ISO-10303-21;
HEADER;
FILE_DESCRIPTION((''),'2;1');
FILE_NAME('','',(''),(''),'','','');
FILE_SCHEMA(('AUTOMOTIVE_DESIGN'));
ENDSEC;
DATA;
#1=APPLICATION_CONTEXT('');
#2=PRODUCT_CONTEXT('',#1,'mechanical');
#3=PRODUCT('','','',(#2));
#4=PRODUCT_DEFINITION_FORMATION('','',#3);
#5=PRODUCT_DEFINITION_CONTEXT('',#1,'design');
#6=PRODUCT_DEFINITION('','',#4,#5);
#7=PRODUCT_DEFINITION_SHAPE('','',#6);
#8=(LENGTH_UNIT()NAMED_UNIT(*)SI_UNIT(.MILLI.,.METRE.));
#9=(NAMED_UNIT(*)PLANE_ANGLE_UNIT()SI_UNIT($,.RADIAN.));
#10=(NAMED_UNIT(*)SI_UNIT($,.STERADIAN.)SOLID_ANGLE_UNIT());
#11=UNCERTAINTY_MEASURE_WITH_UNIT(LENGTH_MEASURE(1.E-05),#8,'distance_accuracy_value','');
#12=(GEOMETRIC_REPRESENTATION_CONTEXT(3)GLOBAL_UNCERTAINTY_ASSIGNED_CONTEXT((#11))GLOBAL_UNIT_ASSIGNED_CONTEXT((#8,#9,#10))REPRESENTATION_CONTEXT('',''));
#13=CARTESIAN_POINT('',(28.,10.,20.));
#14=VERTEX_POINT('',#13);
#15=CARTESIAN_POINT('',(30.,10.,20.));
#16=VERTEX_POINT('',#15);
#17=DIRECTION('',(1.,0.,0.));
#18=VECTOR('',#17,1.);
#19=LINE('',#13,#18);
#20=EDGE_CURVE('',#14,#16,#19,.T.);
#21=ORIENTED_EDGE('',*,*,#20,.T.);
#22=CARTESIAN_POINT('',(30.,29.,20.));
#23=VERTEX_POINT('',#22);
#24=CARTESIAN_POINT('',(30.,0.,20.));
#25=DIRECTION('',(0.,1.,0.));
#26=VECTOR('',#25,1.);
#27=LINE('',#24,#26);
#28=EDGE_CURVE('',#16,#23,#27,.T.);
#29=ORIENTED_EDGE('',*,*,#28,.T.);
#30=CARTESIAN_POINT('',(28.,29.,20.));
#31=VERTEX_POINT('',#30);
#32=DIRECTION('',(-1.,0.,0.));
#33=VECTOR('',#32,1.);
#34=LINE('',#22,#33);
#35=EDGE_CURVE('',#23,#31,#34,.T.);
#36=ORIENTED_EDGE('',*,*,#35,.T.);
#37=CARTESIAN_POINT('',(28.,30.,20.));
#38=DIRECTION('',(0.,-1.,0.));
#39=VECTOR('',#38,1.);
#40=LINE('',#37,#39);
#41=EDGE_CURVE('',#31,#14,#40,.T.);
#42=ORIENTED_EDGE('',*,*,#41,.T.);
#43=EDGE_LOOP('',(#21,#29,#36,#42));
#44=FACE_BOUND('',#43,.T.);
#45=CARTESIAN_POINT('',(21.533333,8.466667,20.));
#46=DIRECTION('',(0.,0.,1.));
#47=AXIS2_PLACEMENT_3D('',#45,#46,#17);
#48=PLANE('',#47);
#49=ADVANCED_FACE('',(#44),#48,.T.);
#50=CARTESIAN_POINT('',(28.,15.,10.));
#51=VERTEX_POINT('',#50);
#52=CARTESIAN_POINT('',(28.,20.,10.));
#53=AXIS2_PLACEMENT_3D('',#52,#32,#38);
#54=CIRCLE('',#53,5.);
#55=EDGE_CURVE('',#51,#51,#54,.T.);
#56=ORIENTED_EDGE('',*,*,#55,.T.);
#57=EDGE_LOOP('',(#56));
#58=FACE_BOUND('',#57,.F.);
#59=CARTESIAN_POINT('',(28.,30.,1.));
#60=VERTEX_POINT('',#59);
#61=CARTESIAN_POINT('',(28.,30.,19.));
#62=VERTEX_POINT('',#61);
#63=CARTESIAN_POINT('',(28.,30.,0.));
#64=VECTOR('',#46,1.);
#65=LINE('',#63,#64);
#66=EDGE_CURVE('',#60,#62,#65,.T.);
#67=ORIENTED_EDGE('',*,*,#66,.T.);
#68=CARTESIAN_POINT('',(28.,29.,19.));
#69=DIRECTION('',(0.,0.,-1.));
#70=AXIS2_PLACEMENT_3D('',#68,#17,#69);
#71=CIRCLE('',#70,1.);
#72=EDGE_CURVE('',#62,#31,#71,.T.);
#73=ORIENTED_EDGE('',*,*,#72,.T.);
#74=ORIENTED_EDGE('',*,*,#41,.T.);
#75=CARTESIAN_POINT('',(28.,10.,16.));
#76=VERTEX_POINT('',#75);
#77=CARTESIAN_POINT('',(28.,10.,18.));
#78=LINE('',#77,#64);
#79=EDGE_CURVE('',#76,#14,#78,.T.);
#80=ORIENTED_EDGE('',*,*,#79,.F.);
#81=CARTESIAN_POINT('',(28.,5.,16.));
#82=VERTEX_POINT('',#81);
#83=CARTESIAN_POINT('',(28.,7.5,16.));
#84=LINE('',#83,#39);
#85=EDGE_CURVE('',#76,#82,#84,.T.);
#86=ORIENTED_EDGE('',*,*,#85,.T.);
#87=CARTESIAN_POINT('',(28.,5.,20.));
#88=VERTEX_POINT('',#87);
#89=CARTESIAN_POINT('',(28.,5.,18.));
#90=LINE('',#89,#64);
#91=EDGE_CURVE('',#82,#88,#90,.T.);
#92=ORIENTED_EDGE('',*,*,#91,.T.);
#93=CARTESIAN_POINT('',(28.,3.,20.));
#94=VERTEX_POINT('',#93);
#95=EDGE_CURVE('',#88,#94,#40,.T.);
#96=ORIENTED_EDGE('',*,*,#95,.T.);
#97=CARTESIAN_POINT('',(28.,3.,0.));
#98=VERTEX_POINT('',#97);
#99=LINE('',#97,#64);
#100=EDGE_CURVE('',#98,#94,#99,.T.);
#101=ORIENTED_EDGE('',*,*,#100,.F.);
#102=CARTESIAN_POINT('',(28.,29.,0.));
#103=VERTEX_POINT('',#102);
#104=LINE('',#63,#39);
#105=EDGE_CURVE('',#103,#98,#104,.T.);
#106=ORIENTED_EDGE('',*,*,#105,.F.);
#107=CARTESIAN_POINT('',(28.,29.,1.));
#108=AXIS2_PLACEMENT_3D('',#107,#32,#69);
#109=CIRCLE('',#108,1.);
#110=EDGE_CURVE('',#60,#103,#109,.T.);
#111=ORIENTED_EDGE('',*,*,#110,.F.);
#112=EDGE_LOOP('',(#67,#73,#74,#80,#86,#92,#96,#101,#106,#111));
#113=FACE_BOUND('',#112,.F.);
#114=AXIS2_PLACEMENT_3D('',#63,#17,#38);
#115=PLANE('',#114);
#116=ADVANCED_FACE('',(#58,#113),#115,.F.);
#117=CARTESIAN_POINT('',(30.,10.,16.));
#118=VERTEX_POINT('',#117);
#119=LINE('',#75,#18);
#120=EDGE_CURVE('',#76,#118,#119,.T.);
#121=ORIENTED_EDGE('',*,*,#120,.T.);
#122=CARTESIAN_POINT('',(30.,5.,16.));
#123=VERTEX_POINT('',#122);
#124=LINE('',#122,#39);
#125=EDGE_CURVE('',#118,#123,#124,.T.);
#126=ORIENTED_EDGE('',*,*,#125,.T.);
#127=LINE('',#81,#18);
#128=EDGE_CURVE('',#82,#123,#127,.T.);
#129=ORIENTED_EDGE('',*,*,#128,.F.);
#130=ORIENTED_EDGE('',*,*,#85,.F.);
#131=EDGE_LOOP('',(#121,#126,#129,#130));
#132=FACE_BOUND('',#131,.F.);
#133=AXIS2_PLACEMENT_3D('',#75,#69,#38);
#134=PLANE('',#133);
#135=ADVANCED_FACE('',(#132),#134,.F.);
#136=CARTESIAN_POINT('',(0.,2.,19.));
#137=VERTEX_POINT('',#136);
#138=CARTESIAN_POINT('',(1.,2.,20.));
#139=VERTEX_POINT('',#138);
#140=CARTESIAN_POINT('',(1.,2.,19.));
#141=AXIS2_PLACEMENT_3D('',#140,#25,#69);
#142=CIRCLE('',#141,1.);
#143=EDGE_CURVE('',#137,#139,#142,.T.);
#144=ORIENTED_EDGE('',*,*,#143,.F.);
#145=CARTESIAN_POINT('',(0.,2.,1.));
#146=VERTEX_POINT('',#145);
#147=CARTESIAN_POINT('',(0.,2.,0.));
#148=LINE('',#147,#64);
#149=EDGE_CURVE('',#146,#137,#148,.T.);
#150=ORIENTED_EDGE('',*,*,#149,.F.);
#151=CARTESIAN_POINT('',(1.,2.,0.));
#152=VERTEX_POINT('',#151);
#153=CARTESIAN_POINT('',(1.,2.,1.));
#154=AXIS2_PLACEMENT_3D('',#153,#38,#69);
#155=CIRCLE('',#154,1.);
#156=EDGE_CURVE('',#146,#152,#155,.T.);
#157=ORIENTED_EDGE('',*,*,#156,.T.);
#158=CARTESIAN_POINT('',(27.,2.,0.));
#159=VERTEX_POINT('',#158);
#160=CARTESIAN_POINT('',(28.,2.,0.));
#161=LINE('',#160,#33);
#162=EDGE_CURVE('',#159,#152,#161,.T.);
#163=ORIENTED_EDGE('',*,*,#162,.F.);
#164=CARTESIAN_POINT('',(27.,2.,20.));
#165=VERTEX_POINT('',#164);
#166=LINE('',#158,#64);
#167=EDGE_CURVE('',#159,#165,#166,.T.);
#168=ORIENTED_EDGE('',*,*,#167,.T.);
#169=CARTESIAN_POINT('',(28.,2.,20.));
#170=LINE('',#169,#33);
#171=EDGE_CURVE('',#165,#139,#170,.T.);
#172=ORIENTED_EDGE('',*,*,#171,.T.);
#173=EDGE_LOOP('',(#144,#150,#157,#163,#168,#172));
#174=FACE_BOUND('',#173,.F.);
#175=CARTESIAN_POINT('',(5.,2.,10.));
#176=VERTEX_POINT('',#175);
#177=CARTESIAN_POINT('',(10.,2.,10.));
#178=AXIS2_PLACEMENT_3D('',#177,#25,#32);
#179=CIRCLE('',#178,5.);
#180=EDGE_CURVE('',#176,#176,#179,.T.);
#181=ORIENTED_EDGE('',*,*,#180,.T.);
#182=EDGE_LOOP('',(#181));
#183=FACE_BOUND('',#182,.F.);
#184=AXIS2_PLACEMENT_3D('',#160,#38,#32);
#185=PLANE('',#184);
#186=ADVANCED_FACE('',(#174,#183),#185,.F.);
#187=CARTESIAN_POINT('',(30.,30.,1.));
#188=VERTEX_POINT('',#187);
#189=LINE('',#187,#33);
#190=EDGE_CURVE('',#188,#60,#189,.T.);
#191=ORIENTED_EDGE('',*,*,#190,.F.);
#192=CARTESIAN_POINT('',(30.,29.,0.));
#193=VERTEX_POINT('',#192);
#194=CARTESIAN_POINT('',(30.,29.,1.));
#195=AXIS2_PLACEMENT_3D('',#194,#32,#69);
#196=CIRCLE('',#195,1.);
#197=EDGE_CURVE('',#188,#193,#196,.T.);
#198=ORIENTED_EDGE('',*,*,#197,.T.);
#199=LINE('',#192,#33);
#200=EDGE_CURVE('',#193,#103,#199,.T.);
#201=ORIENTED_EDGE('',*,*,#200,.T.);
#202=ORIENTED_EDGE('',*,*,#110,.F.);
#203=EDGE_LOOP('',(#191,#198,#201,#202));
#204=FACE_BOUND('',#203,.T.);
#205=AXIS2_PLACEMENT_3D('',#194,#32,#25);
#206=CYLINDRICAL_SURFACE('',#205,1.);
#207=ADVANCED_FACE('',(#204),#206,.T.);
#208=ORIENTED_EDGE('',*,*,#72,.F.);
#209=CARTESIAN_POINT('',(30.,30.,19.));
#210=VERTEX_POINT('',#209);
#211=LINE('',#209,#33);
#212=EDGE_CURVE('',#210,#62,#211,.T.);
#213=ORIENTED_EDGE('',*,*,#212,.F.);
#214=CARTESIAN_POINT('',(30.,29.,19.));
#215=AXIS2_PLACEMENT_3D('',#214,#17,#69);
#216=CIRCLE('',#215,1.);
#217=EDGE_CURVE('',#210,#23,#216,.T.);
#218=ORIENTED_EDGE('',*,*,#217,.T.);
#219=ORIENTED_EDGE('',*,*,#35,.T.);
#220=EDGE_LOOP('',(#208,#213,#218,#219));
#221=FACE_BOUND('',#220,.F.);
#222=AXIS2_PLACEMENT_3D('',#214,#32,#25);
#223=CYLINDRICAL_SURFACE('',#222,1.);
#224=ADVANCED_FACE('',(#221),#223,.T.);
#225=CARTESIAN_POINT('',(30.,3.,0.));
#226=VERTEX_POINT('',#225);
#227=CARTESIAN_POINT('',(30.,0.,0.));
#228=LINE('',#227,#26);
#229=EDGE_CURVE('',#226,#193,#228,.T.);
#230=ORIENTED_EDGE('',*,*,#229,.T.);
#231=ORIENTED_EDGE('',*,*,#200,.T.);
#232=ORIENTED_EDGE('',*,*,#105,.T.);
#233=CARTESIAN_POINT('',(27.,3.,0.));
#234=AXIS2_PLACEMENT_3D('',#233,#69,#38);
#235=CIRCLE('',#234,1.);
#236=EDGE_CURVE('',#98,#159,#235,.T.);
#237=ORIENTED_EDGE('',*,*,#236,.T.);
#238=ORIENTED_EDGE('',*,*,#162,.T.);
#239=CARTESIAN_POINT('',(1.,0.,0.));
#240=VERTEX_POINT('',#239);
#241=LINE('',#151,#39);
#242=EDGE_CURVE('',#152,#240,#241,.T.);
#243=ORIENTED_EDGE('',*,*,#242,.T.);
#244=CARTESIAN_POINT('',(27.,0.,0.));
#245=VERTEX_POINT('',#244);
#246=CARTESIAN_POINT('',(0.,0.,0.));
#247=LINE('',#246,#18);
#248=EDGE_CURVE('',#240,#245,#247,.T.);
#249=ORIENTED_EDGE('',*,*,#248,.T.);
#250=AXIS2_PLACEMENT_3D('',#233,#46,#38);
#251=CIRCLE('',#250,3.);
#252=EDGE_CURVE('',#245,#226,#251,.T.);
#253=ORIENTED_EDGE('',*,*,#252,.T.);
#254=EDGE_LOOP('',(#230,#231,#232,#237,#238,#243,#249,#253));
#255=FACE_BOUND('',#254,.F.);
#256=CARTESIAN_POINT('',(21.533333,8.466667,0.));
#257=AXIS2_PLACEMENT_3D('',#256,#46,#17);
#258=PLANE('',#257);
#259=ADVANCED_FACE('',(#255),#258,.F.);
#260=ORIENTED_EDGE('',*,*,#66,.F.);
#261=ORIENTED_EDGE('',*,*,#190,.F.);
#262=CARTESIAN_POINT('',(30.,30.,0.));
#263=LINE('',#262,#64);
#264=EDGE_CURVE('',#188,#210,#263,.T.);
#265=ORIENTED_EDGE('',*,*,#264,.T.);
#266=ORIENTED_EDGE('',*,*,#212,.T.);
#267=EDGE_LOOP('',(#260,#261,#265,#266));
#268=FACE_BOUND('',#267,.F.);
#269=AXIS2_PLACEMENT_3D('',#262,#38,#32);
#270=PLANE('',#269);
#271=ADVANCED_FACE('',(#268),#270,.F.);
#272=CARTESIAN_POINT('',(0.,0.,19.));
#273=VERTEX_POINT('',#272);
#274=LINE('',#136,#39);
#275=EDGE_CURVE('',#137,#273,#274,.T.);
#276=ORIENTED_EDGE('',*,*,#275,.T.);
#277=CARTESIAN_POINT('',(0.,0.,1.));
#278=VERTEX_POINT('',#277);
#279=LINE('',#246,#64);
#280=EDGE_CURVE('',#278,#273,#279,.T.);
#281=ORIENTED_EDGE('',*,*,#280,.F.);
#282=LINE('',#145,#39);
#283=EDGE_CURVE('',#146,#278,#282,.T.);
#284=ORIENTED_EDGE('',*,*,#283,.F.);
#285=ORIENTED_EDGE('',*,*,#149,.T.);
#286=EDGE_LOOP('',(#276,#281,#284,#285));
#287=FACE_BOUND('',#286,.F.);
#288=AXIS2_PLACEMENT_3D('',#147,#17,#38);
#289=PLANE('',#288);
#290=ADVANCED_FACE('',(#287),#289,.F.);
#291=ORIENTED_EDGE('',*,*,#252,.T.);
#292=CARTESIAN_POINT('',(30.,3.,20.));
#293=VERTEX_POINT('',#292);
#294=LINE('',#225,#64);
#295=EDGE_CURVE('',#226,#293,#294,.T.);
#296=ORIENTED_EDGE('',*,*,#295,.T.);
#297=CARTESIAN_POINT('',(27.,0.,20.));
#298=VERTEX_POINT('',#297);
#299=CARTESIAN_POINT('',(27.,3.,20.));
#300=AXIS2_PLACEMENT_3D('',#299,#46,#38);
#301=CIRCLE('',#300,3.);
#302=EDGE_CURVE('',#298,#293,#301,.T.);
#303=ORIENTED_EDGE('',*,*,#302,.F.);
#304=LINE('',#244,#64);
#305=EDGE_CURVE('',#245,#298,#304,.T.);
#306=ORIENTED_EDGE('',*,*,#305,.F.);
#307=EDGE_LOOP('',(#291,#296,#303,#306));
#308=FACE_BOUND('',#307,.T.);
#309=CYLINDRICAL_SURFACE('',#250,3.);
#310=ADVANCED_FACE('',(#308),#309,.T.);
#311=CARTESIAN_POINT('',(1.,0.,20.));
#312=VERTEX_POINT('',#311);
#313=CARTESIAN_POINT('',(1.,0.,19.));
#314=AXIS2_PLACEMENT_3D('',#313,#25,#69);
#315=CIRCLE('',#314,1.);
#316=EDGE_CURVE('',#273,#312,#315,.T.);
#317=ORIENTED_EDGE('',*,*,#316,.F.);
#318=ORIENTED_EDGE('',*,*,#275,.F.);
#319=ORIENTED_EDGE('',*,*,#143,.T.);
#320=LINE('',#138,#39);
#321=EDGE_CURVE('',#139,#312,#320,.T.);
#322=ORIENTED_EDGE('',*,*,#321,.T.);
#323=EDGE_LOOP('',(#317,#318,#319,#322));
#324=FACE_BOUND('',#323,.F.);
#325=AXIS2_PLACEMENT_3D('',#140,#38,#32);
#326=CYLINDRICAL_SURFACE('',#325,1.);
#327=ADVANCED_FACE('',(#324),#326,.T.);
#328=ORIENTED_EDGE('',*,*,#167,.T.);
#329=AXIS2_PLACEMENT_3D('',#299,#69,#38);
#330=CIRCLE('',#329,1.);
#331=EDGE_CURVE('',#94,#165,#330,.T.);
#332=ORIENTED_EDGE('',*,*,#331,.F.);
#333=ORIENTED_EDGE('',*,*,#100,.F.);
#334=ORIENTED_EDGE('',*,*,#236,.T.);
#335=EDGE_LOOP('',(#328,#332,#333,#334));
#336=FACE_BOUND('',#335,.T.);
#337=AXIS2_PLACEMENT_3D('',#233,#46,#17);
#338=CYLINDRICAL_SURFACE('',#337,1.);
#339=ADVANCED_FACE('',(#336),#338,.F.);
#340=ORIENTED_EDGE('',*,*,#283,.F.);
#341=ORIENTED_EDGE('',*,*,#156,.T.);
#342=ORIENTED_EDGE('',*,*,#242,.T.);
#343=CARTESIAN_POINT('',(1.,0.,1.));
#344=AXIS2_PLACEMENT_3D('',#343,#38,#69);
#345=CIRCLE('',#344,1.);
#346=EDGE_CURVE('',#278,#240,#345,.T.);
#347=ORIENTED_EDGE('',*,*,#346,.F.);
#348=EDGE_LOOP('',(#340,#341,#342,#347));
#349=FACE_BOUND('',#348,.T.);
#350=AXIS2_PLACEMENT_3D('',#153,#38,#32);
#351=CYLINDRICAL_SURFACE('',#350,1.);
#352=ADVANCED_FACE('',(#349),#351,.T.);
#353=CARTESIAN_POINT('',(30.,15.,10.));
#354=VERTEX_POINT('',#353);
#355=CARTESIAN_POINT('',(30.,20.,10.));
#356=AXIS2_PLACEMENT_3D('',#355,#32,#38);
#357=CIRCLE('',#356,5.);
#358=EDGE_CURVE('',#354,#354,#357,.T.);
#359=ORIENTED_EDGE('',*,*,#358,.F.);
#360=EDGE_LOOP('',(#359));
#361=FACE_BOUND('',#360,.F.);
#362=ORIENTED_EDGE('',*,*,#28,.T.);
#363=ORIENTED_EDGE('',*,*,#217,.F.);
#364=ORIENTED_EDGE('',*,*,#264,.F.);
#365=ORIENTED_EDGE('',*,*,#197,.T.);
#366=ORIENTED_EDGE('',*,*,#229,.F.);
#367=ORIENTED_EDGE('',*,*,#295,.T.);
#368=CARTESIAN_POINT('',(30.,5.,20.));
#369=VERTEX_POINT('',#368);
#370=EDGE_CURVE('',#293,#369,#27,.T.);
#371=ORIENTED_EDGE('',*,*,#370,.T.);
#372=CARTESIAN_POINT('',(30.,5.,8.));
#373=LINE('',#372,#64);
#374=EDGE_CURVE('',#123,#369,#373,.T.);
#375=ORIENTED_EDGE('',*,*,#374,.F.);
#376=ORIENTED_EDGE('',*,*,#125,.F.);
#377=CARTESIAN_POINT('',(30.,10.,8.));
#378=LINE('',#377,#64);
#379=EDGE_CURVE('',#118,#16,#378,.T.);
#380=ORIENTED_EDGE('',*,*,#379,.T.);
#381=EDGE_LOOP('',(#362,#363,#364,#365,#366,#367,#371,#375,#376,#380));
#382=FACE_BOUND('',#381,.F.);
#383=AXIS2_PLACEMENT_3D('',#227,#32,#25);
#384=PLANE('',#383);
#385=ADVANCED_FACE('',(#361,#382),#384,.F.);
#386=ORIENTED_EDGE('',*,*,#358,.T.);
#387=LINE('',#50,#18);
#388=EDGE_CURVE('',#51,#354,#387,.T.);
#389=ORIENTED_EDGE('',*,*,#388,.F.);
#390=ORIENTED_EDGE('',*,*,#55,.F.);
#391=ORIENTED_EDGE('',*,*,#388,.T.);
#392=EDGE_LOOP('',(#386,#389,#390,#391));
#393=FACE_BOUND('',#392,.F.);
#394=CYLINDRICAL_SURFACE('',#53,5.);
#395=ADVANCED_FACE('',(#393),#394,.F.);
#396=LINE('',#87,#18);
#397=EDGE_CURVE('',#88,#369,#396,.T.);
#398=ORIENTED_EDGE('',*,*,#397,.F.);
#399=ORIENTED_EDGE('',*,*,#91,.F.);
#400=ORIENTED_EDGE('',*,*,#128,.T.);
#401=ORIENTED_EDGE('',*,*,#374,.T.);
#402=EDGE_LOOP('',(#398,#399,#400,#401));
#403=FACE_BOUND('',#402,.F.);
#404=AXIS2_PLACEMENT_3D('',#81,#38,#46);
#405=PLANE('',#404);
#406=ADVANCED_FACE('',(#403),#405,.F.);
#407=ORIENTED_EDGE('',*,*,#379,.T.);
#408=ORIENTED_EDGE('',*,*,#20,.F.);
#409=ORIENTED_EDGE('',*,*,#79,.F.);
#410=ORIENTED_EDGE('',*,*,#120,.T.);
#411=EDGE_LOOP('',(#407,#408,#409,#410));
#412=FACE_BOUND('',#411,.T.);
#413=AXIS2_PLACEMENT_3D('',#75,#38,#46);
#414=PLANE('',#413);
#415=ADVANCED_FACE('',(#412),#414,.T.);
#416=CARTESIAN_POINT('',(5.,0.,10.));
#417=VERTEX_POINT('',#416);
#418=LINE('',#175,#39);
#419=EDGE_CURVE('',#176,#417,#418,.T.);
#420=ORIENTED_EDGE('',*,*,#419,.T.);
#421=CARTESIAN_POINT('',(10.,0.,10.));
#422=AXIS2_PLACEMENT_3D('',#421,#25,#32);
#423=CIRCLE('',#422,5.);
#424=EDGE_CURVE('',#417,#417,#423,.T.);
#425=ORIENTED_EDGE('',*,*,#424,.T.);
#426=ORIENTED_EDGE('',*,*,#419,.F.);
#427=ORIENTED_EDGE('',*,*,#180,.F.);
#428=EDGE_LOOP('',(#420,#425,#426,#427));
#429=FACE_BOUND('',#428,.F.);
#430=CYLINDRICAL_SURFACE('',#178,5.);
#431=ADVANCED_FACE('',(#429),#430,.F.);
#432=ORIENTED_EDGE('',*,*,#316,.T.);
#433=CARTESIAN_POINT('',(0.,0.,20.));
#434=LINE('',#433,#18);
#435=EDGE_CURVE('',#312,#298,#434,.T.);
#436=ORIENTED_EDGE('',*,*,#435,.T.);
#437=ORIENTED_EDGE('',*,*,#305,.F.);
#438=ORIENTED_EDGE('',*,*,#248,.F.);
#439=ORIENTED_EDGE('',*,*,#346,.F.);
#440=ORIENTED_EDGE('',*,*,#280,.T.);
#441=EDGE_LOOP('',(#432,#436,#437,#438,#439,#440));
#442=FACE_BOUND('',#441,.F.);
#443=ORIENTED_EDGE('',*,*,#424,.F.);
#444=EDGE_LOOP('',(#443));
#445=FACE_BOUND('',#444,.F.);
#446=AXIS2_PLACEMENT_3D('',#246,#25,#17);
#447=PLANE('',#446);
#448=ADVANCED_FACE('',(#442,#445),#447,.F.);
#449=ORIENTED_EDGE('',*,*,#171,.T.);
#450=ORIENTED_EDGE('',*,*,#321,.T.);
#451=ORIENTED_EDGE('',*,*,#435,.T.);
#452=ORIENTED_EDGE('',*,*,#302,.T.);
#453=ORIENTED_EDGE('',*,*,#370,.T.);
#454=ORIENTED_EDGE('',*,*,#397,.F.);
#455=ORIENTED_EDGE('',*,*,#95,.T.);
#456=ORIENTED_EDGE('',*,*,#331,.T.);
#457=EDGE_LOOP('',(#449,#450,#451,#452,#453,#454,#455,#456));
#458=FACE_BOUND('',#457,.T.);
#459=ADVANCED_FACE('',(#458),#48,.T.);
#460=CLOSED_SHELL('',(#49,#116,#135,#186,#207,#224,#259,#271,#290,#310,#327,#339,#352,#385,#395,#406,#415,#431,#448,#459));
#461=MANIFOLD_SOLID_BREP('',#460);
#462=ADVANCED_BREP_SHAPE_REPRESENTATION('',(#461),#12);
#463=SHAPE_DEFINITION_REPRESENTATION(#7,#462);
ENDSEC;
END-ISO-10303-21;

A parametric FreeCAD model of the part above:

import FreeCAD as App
import Part
import Sketcher

V = App.Vector
Q = App.Units.Quantity


def edges_at(feature, points):
    """Names of the edges that pass closest to the given points."""
    edges = feature.Shape.Edges
    near = lambda p: min(range(len(edges)), key=lambda i: edges[i].distToShape(Part.Vertex(*p))[0])
    return sorted({f"Edge{near(p) + 1}" for p in points})

doc = App.newDocument("Part")
body = doc.addObject("PartDesign::Body", "Body")

sketch1 = body.newObject("Sketcher::SketchObject", "Sketch")
sketch1.AttachmentSupport = (doc.getObject("XY_Plane"), [""])
sketch1.MapMode = "FlatFace"
sketch1.addGeometry([
    Part.LineSegment(V(0, 2, 0), V(0, 0, 0)),
    Part.LineSegment(V(0, 0, 0), V(30, 0, 0)),
    Part.LineSegment(V(30, 0, 0), V(30, 30, 0)),
    Part.LineSegment(V(30, 30, 0), V(28, 30, 0)),
    Part.LineSegment(V(28, 30, 0), V(28, 2, 0)),
    Part.LineSegment(V(28, 2, 0), V(0, 2, 0)),
], False)
sketch1.addConstraint([
    Sketcher.Constraint("Coincident", 0, 2, 1, 1),
    Sketcher.Constraint("Coincident", 1, 2, 2, 1),
    Sketcher.Constraint("Coincident", 2, 2, 3, 1),
    Sketcher.Constraint("Coincident", 3, 2, 4, 1),
    Sketcher.Constraint("Coincident", 4, 2, 5, 1),
    Sketcher.Constraint("Coincident", 5, 2, 0, 1),
    Sketcher.Constraint("Vertical", 0),
    Sketcher.Constraint("Horizontal", 1),
    Sketcher.Constraint("Vertical", 2),
    Sketcher.Constraint("Horizontal", 3),
    Sketcher.Constraint("Vertical", 4),
    Sketcher.Constraint("Horizontal", 5),
    Sketcher.Constraint("Coincident", 0, 2, -1, 1),
    Sketcher.Constraint("Equal", 3, 0),
    Sketcher.Constraint("Equal", 1, 2),
    Sketcher.Constraint("DistanceX", 1, 1, 1, 2, Q("30 mm")),
    Sketcher.Constraint("DistanceX", 3, 2, 3, 1, Q("2 mm")),
])
pad1 = body.newObject("PartDesign::Pad", "Pad")
pad1.Profile = sketch1
pad1.Length = 20
doc.recompute()

fillet = body.newObject("PartDesign::Fillet", "Fillet")
fillet.Base = (pad1, edges_at(pad1, [
    (28, 2, 10),
    (0, 1, 0),
    (0, 1, 20),
    (29, 30, 20),
    (29, 30, 0),
]))
fillet.Radius = 1
doc.recompute()

fillet2 = body.newObject("PartDesign::Fillet", "Fillet001")
fillet2.Base = (fillet, edges_at(fillet, [(30, 0, 10)]))
fillet2.Radius = 3

sketch2 = body.newObject("Sketcher::SketchObject", "Sketch001")
sketch2.AttachmentSupport = (doc.getObject("YZ_Plane"), [""])
sketch2.MapMode = "FlatFace"
sketch2.AttachmentOffset = App.Placement(V(0, 0, 28), App.Rotation())
sketch2.addGeometry(Part.Circle(V(20, 10, 0), V(0, 0, 1), 5), False)
sketch2.addConstraint([
    Sketcher.Constraint("Diameter", 0, Q("10 mm")),
    Sketcher.Constraint("DistanceX", -1, 1, 0, 3, Q("20 mm")),
    Sketcher.Constraint("DistanceY", -1, 1, 0, 3, Q("10 mm")),
])
pocket1 = body.newObject("PartDesign::Pocket", "Pocket")
pocket1.Profile = sketch2
pocket1.Length = 25
pocket1.Reversed = True

sketch3 = body.newObject("Sketcher::SketchObject", "Sketch002")
sketch3.AttachmentSupport = (doc.getObject("XZ_Plane"), [""])
sketch3.MapMode = "FlatFace"
sketch3.AttachmentOffset = App.Placement(V(0, 0, -2), App.Rotation())
sketch3.addGeometry(Part.Circle(V(10, 10, 0), V(0, 0, 1), 5), False)
sketch3.addConstraint([
    Sketcher.Constraint("Diameter", 0, Q("10 mm")),
    Sketcher.Constraint("DistanceX", -1, 1, 0, 3, Q("10 mm")),
    Sketcher.Constraint("DistanceY", -1, 1, 0, 3, Q("10 mm")),
])
pocket2 = body.newObject("PartDesign::Pocket", "Pocket001")
pocket2.Profile = sketch3
pocket2.Length = 25
pocket2.Reversed = True

sketch4 = body.newObject("Sketcher::SketchObject", "Sketch003")
sketch4.AttachmentSupport = (doc.getObject("YZ_Plane"), [""])
sketch4.MapMode = "FlatFace"
sketch4.AttachmentOffset = App.Placement(V(0, 0, 28), App.Rotation())
sketch4.addGeometry([
    Part.LineSegment(V(10, 20, 0), V(10, 16, 0)),
    Part.LineSegment(V(10, 16, 0), V(5, 16, 0)),
    Part.LineSegment(V(5, 16, 0), V(5, 20, 0)),
    Part.LineSegment(V(5, 20, 0), V(10, 20, 0)),
], False)
sketch4.addConstraint([
    Sketcher.Constraint("Coincident", 0, 2, 1, 1),
    Sketcher.Constraint("Coincident", 1, 2, 2, 1),
    Sketcher.Constraint("Coincident", 2, 2, 3, 1),
    Sketcher.Constraint("Coincident", 3, 2, 0, 1),
    Sketcher.Constraint("Vertical", 0),
    Sketcher.Constraint("Horizontal", 1),
    Sketcher.Constraint("Vertical", 2),
    Sketcher.Constraint("Horizontal", 3),
    Sketcher.Constraint("DistanceX", 1, 2, 1, 1, Q("5 mm")),
    Sketcher.Constraint("DistanceY", 0, 2, 0, 1, Q("4 mm")),
    Sketcher.Constraint("DistanceX", -1, 1, 0, 2, Q("10 mm")),
    Sketcher.Constraint("DistanceY", -1, 1, 0, 2, Q("16 mm")),
])
pocket3 = body.newObject("PartDesign::Pocket", "Pocket002")
pocket3.Profile = sketch4
pocket3.Length = 25
pocket3.Reversed = True

doc.recompute()
